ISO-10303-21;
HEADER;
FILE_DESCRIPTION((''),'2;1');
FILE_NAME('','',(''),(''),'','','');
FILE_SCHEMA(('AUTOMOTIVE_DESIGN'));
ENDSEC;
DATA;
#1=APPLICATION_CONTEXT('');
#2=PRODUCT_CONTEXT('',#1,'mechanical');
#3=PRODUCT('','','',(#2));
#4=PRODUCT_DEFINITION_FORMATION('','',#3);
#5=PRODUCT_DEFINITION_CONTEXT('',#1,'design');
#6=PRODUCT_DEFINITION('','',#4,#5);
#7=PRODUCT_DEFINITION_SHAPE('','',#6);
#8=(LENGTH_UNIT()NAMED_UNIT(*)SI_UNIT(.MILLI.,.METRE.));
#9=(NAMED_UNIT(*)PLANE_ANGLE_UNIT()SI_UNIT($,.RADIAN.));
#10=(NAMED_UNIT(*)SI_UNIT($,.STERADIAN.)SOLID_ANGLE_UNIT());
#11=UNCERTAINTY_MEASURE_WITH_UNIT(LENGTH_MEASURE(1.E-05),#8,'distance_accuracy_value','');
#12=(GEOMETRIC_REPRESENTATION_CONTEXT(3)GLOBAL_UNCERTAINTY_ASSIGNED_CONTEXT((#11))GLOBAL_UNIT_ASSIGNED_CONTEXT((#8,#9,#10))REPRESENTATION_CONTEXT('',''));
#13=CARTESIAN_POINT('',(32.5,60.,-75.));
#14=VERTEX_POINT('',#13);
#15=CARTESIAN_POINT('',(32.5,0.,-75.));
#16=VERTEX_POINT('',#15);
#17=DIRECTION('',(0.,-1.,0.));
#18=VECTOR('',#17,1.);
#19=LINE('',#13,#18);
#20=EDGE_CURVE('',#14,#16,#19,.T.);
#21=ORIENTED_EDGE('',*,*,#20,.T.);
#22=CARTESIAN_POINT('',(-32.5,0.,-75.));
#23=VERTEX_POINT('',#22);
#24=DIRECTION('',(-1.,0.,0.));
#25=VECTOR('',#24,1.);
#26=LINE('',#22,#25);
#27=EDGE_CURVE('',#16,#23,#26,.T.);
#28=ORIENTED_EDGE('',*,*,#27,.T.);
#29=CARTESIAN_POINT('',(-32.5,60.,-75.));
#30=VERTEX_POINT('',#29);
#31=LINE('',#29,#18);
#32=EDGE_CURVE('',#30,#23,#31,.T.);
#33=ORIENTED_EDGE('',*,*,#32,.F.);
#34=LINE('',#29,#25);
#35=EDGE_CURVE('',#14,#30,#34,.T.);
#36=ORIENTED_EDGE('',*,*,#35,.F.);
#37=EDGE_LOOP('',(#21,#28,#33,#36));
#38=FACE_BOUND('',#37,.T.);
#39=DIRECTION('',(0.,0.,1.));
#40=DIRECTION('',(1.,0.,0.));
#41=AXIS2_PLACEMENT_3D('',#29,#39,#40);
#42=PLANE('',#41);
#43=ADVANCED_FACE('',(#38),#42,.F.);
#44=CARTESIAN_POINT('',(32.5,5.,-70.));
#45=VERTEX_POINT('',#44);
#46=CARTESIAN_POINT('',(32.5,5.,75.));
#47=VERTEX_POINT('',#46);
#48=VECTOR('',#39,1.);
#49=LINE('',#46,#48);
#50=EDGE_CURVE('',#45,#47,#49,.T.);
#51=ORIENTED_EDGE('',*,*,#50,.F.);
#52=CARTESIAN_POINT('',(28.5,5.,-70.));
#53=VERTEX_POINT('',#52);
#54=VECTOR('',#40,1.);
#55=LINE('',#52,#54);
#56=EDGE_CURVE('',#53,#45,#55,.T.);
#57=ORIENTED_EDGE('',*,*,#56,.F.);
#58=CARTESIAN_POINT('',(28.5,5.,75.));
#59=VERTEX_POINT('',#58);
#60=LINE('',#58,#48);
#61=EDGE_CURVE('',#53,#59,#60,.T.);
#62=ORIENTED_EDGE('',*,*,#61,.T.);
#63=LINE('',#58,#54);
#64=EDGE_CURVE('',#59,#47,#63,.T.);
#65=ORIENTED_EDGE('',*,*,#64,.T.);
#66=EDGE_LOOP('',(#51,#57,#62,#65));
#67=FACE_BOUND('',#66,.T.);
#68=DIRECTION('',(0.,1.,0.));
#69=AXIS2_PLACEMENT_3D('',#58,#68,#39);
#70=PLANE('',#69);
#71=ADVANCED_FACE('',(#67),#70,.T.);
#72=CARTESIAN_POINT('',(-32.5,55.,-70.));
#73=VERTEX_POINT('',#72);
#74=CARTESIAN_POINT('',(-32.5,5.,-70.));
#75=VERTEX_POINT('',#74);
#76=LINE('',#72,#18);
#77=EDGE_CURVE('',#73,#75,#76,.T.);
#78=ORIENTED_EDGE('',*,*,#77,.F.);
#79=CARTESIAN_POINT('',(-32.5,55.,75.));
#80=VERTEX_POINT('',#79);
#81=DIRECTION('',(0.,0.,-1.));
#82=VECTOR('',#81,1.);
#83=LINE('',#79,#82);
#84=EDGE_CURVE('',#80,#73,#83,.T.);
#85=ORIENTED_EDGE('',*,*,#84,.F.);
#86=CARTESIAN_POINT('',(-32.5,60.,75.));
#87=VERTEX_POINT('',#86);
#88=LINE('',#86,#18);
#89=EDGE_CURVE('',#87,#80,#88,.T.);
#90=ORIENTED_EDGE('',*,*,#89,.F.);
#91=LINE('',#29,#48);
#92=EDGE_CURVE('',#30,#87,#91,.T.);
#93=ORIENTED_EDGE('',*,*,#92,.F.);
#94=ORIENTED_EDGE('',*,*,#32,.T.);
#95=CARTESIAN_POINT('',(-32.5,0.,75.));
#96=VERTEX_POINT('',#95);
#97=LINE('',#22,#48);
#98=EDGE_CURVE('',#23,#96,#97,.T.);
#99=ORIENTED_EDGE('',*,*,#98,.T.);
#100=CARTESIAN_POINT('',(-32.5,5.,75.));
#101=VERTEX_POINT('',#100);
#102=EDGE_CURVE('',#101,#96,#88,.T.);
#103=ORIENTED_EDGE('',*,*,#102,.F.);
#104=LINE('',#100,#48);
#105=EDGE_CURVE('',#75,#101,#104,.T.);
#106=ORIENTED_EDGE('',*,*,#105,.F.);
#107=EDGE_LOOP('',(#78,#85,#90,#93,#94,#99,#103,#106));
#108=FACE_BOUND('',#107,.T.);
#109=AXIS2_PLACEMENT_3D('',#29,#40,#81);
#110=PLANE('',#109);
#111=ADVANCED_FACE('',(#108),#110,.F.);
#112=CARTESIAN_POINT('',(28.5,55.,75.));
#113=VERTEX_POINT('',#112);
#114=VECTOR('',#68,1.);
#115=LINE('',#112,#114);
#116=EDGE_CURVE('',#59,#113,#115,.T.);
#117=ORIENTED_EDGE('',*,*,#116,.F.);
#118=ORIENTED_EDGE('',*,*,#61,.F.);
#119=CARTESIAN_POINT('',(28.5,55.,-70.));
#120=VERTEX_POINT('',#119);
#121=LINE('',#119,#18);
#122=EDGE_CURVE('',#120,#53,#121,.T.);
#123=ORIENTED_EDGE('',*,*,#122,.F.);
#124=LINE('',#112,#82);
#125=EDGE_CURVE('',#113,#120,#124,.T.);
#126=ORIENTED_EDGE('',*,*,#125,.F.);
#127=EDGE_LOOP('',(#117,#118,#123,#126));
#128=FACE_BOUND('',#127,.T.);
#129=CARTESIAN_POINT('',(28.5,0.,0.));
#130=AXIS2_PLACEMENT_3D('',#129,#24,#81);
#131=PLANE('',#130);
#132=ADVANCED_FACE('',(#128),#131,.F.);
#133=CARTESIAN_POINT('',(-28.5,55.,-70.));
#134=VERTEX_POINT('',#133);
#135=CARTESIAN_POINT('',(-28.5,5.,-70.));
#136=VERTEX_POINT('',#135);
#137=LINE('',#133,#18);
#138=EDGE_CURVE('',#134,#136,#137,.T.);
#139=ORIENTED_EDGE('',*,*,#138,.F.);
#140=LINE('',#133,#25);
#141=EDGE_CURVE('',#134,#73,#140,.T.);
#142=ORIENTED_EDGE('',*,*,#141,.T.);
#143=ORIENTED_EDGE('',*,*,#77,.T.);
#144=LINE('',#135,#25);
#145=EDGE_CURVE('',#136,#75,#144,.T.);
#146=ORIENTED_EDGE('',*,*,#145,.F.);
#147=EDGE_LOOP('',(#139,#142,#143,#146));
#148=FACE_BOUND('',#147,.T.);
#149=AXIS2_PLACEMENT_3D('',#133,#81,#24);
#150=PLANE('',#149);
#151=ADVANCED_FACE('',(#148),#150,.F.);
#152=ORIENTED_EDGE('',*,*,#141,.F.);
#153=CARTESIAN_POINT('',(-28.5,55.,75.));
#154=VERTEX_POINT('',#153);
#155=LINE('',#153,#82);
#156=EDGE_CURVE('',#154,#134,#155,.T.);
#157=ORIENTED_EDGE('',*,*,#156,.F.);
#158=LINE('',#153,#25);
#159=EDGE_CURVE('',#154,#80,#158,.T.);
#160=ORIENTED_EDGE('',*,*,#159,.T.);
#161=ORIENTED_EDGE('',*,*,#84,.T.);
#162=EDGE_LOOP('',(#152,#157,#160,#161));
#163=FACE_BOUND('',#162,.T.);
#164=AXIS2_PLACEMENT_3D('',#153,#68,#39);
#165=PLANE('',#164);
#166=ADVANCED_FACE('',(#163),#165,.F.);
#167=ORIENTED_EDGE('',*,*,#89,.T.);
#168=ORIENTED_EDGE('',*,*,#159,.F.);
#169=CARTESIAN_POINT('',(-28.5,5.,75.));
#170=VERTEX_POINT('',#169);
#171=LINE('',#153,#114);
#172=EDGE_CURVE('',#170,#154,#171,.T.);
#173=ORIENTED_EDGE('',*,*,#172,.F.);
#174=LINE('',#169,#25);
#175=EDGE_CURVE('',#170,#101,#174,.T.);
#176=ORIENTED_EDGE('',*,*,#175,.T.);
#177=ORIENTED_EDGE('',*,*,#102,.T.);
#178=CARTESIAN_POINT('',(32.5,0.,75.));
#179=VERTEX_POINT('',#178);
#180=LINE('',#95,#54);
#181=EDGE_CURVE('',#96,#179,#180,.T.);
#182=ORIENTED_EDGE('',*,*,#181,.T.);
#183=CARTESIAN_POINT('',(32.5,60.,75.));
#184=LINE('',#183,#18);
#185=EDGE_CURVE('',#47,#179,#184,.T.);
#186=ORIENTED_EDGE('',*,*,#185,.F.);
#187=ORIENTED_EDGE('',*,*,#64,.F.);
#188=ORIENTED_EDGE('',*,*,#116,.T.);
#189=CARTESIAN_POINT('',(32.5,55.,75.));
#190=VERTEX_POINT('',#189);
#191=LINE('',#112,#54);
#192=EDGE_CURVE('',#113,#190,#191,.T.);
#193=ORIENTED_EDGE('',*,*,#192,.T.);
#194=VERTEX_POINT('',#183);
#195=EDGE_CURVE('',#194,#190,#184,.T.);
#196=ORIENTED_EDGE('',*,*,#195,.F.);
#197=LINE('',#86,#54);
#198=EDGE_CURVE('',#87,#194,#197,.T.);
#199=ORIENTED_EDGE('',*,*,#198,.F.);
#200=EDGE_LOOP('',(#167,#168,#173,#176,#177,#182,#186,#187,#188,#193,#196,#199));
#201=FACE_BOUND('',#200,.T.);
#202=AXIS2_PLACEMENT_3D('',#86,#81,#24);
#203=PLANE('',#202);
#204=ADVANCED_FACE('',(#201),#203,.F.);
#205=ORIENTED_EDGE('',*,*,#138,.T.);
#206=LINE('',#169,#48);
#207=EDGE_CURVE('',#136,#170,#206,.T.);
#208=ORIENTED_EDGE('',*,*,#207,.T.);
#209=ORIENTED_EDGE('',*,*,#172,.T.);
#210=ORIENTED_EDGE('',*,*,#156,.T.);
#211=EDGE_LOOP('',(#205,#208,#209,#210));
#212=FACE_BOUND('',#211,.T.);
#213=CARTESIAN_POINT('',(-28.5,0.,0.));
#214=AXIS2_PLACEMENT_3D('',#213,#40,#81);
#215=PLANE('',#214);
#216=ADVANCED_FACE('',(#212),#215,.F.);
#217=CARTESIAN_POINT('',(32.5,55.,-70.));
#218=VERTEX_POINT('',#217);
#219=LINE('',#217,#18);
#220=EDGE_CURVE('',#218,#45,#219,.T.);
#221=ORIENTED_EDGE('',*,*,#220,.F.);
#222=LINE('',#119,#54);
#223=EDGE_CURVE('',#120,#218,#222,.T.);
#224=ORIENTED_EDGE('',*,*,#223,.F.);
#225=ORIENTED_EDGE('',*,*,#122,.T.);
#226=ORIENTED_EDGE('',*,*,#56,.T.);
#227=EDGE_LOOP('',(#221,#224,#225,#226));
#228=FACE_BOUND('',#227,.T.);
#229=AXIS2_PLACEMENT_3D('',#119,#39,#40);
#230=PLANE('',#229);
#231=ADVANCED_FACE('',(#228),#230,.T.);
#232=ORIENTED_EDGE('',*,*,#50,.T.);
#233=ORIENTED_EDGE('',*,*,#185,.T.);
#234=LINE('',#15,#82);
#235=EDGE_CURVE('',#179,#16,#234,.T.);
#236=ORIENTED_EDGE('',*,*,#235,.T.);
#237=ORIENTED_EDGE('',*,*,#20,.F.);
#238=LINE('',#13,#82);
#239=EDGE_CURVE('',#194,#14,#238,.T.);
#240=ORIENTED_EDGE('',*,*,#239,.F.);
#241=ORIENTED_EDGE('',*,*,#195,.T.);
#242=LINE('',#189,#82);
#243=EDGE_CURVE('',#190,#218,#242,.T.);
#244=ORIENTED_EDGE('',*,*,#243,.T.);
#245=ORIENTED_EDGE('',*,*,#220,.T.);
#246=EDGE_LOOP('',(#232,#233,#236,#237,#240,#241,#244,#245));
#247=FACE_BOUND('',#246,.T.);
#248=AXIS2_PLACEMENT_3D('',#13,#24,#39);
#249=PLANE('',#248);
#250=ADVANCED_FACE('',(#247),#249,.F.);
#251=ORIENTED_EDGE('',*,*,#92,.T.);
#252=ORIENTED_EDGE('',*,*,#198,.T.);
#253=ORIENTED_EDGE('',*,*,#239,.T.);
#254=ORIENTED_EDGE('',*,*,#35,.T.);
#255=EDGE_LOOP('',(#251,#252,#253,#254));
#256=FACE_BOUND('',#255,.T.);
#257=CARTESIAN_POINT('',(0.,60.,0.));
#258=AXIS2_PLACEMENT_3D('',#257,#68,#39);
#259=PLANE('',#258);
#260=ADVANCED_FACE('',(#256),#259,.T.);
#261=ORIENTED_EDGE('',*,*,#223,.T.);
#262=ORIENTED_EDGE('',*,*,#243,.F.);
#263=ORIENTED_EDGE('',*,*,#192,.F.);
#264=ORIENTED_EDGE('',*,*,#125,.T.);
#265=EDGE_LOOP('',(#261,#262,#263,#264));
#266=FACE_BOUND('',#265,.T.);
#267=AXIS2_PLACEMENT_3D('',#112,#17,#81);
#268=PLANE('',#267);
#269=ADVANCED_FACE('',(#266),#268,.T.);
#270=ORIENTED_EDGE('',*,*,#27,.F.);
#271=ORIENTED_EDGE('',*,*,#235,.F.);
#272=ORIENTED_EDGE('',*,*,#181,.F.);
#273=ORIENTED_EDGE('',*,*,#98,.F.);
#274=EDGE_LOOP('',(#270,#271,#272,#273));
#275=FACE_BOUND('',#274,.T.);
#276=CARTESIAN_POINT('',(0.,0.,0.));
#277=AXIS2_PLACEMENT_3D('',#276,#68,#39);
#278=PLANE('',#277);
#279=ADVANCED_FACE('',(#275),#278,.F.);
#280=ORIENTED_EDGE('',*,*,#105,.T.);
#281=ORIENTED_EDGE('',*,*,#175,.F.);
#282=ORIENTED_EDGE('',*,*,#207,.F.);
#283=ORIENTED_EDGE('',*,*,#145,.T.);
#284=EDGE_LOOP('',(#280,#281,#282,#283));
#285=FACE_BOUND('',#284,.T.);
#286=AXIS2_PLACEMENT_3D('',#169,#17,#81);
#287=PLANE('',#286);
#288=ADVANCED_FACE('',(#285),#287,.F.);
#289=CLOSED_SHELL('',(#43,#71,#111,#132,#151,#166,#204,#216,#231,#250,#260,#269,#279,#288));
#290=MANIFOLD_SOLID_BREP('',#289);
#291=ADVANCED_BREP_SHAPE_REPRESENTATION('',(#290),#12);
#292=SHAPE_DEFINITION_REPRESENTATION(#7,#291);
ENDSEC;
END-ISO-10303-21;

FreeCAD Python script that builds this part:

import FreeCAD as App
import Part
import Sketcher
from FreeCAD import Vector
Q = App.Units.Quantity


def add_polygon(sketch, points):
    """Adds a closed chain of lines whose ends are joined by coincident constraints."""
    first, n = sketch.GeometryCount, len(points)
    for a, b in zip(points, points[1:] + points[:1]):
        sketch.addGeometry(Part.LineSegment(App.Vector(*a, 0), App.Vector(*b, 0)), False)
    for i in range(n):
        sketch.addConstraint(Sketcher.Constraint("Coincident", first + i, 2, first + (i + 1) % n, 1))

doc = App.newDocument("Part")
body = doc.addObject("PartDesign::Body", "Body")

# Sketch on XZ plane
sketch1 = doc.addObject("Sketcher::SketchObject", "Sketch")
body.addObject(sketch1)
sketch1.AttachmentSupport = (doc.XZ_Plane, [""])
sketch1.MapMode = "FlatFace"
add_polygon(sketch1, [(-32, -75), (-32, 75), (32, 75), (32, -75)])  # lines 0-3
sketch1.addConstraint([
    Sketcher.Constraint("Vertical", 0),
    Sketcher.Constraint("Horizontal", 1),
    Sketcher.Constraint("Vertical", 2),
    Sketcher.Constraint("Horizontal", 3),
    Sketcher.Constraint("Symmetric", 0, 2, 2, 2, -1, 1),
    Sketcher.Constraint("DistanceX", 1, 1, 1, 2, Q("65 mm")),
    Sketcher.Constraint("DistanceY", 0, 1, 0, 2, Q("150 mm")),
])
pad1 = doc.addObject("PartDesign::Pad", "Pad")
body.addObject(pad1)
pad1.Profile = sketch1
pad1.Length = 60
pad1.Reversed = True

# Sketch on YZ plane
sketch2 = doc.addObject("Sketcher::SketchObject", "Sketch001")
body.addObject(sketch2)
sketch2.AttachmentSupport = (doc.YZ_Plane, [""])
sketch2.MapMode = "FlatFace"
sketch2.AttachmentOffset = App.Placement(Vector(0, 0, -32.5), App.Rotation())
add_polygon(sketch2, [(55, -70), (5, -70), (5, 75), (55, 75)])  # lines 0-3
sketch2.addConstraint([
    Sketcher.Constraint("Horizontal", 0),
    Sketcher.Constraint("Vertical", 1),
    Sketcher.Constraint("Horizontal", 2),
    Sketcher.Constraint("Vertical", 3),
    Sketcher.Constraint("DistanceX", 0, 2, 0, 1, Q("50 mm")),
    Sketcher.Constraint("DistanceY", 1, 1, 1, 2, Q("145 mm")),
    Sketcher.Constraint("DistanceX", -1, 1, 0, 2, Q("5 mm")),
    Sketcher.Constraint("DistanceY", 0, 2, -1, 1, Q("70 mm")),
])
pocket1 = doc.addObject("PartDesign::Pocket", "Pocket")
body.addObject(pocket1)
pocket1.Profile = sketch2
pocket1.Length = 4
pocket1.Reversed = True
doc.recompute()

mirrored = doc.addObject("PartDesign::Mirrored", "Mirrored")
body.addObject(mirrored)
mirrored.Originals = [pocket1]
mirrored.MirrorPlane = (doc.YZ_Plane, [""])
body.Tip = mirrored

doc.recompute()
